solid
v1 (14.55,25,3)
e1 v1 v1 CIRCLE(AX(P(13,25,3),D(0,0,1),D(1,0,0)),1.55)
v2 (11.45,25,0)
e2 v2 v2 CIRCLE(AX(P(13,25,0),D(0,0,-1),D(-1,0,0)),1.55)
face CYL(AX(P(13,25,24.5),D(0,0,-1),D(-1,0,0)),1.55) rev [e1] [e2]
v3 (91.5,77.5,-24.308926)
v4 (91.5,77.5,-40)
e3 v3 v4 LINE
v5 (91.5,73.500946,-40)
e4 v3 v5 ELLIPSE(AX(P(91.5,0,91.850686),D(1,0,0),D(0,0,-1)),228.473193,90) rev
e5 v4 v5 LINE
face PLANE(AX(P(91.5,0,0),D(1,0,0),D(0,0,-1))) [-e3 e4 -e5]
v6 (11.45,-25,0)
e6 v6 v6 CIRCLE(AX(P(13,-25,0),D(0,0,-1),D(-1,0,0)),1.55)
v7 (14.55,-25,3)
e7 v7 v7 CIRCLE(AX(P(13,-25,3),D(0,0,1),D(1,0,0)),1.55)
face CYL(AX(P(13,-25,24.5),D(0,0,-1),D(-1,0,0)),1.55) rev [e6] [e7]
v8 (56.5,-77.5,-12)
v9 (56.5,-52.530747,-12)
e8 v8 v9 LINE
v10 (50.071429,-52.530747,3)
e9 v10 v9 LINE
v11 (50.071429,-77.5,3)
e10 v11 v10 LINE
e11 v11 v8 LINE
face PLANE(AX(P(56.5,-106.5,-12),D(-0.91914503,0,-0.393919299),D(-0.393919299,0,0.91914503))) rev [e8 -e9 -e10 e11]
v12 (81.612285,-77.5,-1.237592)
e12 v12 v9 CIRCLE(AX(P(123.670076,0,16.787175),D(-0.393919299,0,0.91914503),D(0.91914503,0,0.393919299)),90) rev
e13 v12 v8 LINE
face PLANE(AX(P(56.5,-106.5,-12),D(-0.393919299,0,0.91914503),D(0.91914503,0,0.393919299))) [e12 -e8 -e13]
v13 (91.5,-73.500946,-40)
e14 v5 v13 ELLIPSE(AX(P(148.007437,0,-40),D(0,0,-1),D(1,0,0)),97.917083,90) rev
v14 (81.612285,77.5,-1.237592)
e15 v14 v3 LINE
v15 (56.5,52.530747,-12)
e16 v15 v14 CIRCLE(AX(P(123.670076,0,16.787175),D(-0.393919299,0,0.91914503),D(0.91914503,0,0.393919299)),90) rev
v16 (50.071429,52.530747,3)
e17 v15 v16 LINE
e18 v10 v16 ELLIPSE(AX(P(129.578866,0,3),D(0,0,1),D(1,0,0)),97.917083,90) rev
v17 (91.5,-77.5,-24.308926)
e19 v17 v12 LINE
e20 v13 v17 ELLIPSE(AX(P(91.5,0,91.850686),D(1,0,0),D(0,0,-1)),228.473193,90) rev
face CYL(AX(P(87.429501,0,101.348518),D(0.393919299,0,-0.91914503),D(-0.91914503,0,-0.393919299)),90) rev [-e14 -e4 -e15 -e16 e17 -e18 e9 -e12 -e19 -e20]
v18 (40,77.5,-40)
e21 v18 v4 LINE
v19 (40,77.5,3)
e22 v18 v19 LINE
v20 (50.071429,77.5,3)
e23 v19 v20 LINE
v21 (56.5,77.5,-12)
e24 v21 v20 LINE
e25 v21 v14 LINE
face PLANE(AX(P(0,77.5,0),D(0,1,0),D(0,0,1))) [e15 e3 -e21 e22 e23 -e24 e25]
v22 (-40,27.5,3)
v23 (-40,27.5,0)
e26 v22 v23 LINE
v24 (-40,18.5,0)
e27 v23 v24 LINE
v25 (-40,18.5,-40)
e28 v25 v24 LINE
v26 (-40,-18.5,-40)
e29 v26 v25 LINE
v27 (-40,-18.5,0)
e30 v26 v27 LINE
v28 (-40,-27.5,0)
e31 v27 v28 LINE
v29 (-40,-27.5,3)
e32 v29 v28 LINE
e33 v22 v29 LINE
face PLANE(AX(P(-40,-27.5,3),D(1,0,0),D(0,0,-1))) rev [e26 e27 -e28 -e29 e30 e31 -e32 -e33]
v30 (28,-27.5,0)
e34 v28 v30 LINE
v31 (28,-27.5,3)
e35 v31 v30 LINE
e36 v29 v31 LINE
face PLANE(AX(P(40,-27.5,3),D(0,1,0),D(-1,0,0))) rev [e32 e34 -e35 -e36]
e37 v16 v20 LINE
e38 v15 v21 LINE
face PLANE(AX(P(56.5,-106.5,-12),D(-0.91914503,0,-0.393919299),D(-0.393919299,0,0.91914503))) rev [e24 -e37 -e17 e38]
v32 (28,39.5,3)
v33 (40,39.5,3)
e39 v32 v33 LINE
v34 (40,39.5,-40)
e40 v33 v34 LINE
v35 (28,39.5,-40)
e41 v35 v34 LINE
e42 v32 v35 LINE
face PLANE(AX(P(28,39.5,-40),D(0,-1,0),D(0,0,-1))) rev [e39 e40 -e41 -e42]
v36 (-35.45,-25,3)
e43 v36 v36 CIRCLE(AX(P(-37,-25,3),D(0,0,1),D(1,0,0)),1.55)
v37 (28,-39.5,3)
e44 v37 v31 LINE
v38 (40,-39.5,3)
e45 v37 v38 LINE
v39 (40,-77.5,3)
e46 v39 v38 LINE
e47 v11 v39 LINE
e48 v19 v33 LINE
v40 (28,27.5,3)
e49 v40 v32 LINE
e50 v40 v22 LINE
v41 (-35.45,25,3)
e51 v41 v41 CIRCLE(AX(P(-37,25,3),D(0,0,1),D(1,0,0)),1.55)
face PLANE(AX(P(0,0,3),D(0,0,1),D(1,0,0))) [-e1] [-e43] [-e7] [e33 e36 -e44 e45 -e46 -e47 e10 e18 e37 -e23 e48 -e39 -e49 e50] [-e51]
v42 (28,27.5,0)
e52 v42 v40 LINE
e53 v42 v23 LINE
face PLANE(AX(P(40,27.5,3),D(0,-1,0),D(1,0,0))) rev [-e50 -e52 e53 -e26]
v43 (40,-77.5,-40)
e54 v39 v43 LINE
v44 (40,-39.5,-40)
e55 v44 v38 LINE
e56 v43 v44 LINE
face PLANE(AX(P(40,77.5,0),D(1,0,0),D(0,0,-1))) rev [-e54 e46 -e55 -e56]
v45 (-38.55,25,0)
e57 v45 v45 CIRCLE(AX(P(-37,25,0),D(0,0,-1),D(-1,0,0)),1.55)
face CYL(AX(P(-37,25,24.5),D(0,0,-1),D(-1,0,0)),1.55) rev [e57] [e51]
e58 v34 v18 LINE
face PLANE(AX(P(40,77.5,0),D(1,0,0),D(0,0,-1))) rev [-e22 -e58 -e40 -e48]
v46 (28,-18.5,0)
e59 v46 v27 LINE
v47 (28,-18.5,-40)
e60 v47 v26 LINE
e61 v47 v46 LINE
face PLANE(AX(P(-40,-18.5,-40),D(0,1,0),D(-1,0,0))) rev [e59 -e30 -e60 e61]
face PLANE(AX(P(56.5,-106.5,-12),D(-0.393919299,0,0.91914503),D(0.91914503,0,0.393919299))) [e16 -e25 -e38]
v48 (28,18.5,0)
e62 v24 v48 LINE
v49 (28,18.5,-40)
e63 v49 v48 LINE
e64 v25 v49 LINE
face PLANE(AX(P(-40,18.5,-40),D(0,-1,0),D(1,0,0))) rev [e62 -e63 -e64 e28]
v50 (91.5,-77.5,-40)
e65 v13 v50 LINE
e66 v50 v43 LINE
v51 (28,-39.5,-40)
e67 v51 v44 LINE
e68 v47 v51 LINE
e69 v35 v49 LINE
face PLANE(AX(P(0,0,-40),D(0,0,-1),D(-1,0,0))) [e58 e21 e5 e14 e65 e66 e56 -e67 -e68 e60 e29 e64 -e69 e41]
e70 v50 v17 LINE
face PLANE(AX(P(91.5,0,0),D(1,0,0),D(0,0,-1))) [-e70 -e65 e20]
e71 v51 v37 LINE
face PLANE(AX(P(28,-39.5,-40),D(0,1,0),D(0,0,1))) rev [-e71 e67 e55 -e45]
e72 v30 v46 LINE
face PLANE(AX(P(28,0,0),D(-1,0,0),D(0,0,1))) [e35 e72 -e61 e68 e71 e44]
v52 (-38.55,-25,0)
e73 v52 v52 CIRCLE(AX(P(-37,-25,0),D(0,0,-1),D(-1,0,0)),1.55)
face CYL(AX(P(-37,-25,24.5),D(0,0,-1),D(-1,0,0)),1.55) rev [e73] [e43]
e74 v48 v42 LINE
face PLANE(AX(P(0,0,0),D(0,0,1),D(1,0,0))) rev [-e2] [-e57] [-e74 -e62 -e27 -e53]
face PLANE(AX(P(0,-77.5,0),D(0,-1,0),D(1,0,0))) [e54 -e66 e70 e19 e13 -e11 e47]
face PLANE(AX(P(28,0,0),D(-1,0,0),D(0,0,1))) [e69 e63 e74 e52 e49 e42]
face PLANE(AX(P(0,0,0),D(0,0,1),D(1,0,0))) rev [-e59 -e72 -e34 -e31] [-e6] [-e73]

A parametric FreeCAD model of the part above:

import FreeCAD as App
import Part
import Sketcher
Q = App.Units.Quantity


def add_polygon(sketch, points):
    """Adds a closed chain of lines whose ends are joined by coincident constraints."""
    first, n = sketch.GeometryCount, len(points)
    for a, b in zip(points, points[1:] + points[:1]):
        sketch.addGeometry(Part.LineSegment(App.Vector(*a, 0), App.Vector(*b, 0)), False)
    for i in range(n):
        sketch.addConstraint(Sketcher.Constraint("Coincident", first + i, 2, first + (i + 1) % n, 1))

doc = App.newDocument("Part")
body = doc.addObject("PartDesign::Body", "Body")

# Sketch on XY plane
sketch1 = body.newObject("Sketcher::SketchObject", "Sketch")
sketch1.AttachmentSupport = (doc.getObject("XY_Plane"), [""])
sketch1.MapMode = "FlatFace"
add_polygon(sketch1, [(-40, 28), (-40, -28), (40, -28), (40, 28)])  # lines 0-3
sketch1.addConstraint([
    Sketcher.Constraint("Vertical", 0),
    Sketcher.Constraint("Horizontal", 1),
    Sketcher.Constraint("Vertical", 2),
    Sketcher.Constraint("Horizontal", 3),
    Sketcher.Constraint("Symmetric", 0, 2, 2, 2, -1, 1),
    Sketcher.Constraint("DistanceX", 1, 1, 1, 2, Q("80 mm")),
    Sketcher.Constraint("DistanceY", 0, 2, 0, 1, Q("55 mm")),
])
pad1 = body.newObject("PartDesign::Pad", "Pad")
pad1.Profile = sketch1
pad1.Length = 3

# Sketch on XY plane
sketch2 = body.newObject("Sketcher::SketchObject", "Sketch001")
sketch2.AttachmentSupport = (doc.getObject("XY_Plane"), [""])
sketch2.MapMode = "FlatFace"
sketch2.addGeometry([
    Part.Circle(App.Vector(-37, 25, 0), App.Vector(0, 0, 1), 1.6),
    Part.Circle(App.Vector(-37, -25, 0), App.Vector(0, 0, 1), 1.6),
    Part.Circle(App.Vector(13, 25, 0), App.Vector(0, 0, 1), 1.6),
    Part.Circle(App.Vector(13, -25, 0), App.Vector(0, 0, 1), 1.6),
], False)
sketch2.addConstraint([
    Sketcher.Constraint("Equal", 0, 1),
    Sketcher.Constraint("Equal", 1, 2),
    Sketcher.Constraint("Equal", 2, 3),
    Sketcher.Constraint("Symmetric", 0, 3, 1, 3, -1),
    Sketcher.Constraint("Symmetric", 2, 3, 3, 3, -1),
    Sketcher.Constraint("Horizontal", 0, 3, 2, 3),
    Sketcher.Constraint("Diameter", 0, Q("3.1 mm")),
    Sketcher.Constraint("DistanceX", 0, 3, -1, 1, Q("37 mm")),
    Sketcher.Constraint("DistanceY", -1, 1, 0, 3, Q("25 mm")),
    Sketcher.Constraint("DistanceX", -1, 1, 2, 3, Q("13 mm")),
])
pocket1 = body.newObject("PartDesign::Pocket", "Pocket")
pocket1.Profile = sketch2
pocket1.Length = 24.5
pocket1.Reversed = True
body2 = doc.addObject("PartDesign::Body", "Body001")

# Sketch on YZ plane
sketch3 = body2.newObject("Sketcher::SketchObject", "Sketch002")
sketch3.AttachmentSupport = (doc.getObject("YZ_Plane001"), [""])
sketch3.MapMode = "FlatFace"
sketch3.AttachmentOffset = App.Placement(App.Vector(0, 0, 40), App.Rotation())
add_polygon(sketch3, [(27.5, 3), (-27.5, 3), (-27.5, 0), (27.5, 0)])  # lines 0-3
sketch3.addConstraint([
    Sketcher.Constraint("Horizontal", 0),
    Sketcher.Constraint("Vertical", 1),
    Sketcher.Constraint("Horizontal", 2),
    Sketcher.Constraint("Vertical", 3),
    Sketcher.Constraint("Symmetric", 1, 2, 2, 2, -1, 1),
    Sketcher.Constraint("DistanceX", 0, 2, 0, 1, Q("55 mm")),
    Sketcher.Constraint("DistanceY", 1, 2, 1, 1, Q("3 mm")),
])
pad2 = body2.newObject("PartDesign::Pad", "Pad001")
pad2.Profile = sketch3
pad2.Length = 1.5

# Sketch on YZ plane
sketch4 = body2.newObject("Sketcher::SketchObject", "Sketch003")
sketch4.AttachmentSupport = (doc.getObject("YZ_Plane001"), [""])
sketch4.MapMode = "FlatFace"
sketch4.AttachmentOffset = App.Placement(App.Vector(0, 0, 41.5), App.Rotation())
add_polygon(sketch4, [(27.5, 3), (-27.5, 3), (-27.5, 0), (27.5, 0)])  # lines 0-3
sketch4.addConstraint([
    Sketcher.Constraint("Horizontal", 0),
    Sketcher.Constraint("Vertical", 1),
    Sketcher.Constraint("Horizontal", 2),
    Sketcher.Constraint("Vertical", 3),
    Sketcher.Constraint("Symmetric", 1, 2, 2, 2, -1, 1),
    Sketcher.Constraint("DistanceX", 0, 2, 0, 1, Q("55 mm")),
    Sketcher.Constraint("DistanceY", 1, 2, 1, 1, Q("3 mm")),
])
pad3 = body2.newObject("PartDesign::Pad", "Pad002")
pad3.Profile = sketch4
pad3.Length = 50
doc.recompute()

boolean = body.newObject("PartDesign::Boolean", "Boolean")
boolean.Type = "Fuse"
boolean.addObjects([body2])

# Sketch on XZ plane
sketch5 = body.newObject("Sketcher::SketchObject", "Sketch004")
sketch5.AttachmentSupport = (doc.getObject("XZ_Plane"), [""])
sketch5.MapMode = "FlatFace"
sketch5.AttachmentOffset = App.Placement(App.Vector(0, 0, -27.5), App.Rotation())
add_polygon(sketch5, [(40, 0), (40, 3), (91.5, 3), (91.5, 0)])  # lines 0-3
sketch5.addConstraint([
    Sketcher.Constraint("Vertical", 0),
    Sketcher.Constraint("Horizontal", 1),
    Sketcher.Constraint("Vertical", 2),
    Sketcher.Constraint("Horizontal", 3),
    Sketcher.Constraint("PointOnObject", 2, 2, -1),
    Sketcher.Constraint("DistanceY", 0, 1, 0, 2, Q("3 mm")),
    Sketcher.Constraint("DistanceX", 1, 1, 1, 2, Q("51.5 mm")),
    Sketcher.Constraint("DistanceX", -1, 1, 0, 2, Q("40 mm")),
])
pad4 = body.newObject("PartDesign::Pad", "Pad003")
pad4.Profile = sketch5
pad4.Length = 50
pad4.Reversed = True

# Sketch on XZ plane
sketch6 = body.newObject("Sketcher::SketchObject", "Sketch005")
sketch6.AttachmentSupport = (doc.getObject("XZ_Plane"), [""])
sketch6.MapMode = "FlatFace"
sketch6.AttachmentOffset = App.Placement(App.Vector(0, 0, 27.5), App.Rotation())
add_polygon(sketch6, [(40, 3), (40, 0), (91.5, 0), (91.5, 3)])  # lines 0-3
sketch6.addConstraint([
    Sketcher.Constraint("Vertical", 0),
    Sketcher.Constraint("Horizontal", 1),
    Sketcher.Constraint("Vertical", 2),
    Sketcher.Constraint("Horizontal", 3),
    Sketcher.Constraint("PointOnObject", 0, 2, -1),
    Sketcher.Constraint("DistanceY", 0, 2, 0, 1, Q("3 mm")),
    Sketcher.Constraint("DistanceX", 1, 1, 1, 2, Q("51.5 mm")),
    Sketcher.Constraint("DistanceX", -1, 1, 0, 2, Q("40 mm")),
])
pad5 = body.newObject("PartDesign::Pad", "Pad004")
pad5.Profile = sketch6
pad5.Length = 50

# Sketch on XY plane
sketch7 = body.newObject("Sketcher::SketchObject", "Sketch006")
sketch7.AttachmentSupport = (doc.getObject("XY_Plane"), [""])
sketch7.MapMode = "FlatFace"
add_polygon(sketch7, [(92, 78), (92, -78), (40, -78), (40, 78)])  # lines 0-3
sketch7.addConstraint([
    Sketcher.Constraint("Vertical", 0),
    Sketcher.Constraint("Horizontal", 1),
    Sketcher.Constraint("Vertical", 2),
    Sketcher.Constraint("Horizontal", 3),
    Sketcher.Constraint("DistanceY", 0, 2, 0, 1, Q("155 mm")),
    Sketcher.Constraint("DistanceX", 1, 2, 1, 1, Q("51.5 mm")),
    Sketcher.Constraint("DistanceX", -1, 1, 1, 2, Q("40 mm")),
    Sketcher.Constraint("DistanceY", 0, 2, -1, 1, Q("77.5 mm")),
])
pad6 = body.newObject("PartDesign::Pad", "Pad005")
pad6.Profile = sketch7
pad6.Length = 40
pad6.Reversed = True

# Sketch on YZ plane
sketch8 = body.newObject("Sketcher::SketchObject", "Sketch007")
sketch8.AttachmentSupport = (doc.getObject("YZ_Plane"), [""])
sketch8.MapMode = "FlatFace"
sketch8.AttachmentOffset = App.Placement(App.Vector(0, 0, 40), App.Rotation())
add_polygon(sketch8, [(39.5, 3), (39.5, -40), (-39.5, -40), (-39.5, 3), (-27.5, 3), (-27.5, 0), (27.5, 0), (27.5, 3)])  # lines 0-7
sketch8.addConstraint([
    Sketcher.Constraint("Vertical", 0),
    Sketcher.Constraint("Horizontal", 1),
    Sketcher.Constraint("Vertical", 2),
    Sketcher.Constraint("Horizontal", 3),
    Sketcher.Constraint("Vertical", 4),
    Sketcher.Constraint("Horizontal", 5),
    Sketcher.Constraint("Vertical", 6),
    Sketcher.Constraint("Horizontal", 7),
    Sketcher.Constraint("Symmetric", 4, 2, 5, 2, -1, 1),
    Sketcher.Constraint("Symmetric", 2, 2, 7, 2, -2),
    Sketcher.Constraint("DistanceX", 1, 2, 1, 1, Q("79 mm")),
    Sketcher.Constraint("DistanceX", 3, 1, 3, 2, Q("12 mm")),
    Sketcher.Constraint("DistanceY", 0, 2, 0, 1, Q("43 mm")),
    Sketcher.Constraint("DistanceY", 4, 2, 4, 1, Q("3 mm")),
])
pad7 = body.newObject("PartDesign::Pad", "Pad006")
pad7.Profile = sketch8
pad7.Length = 12
pad7.Reversed = True

# Sketch on XZ plane
sketch9 = body.newObject("Sketcher::SketchObject", "Sketch008")
sketch9.AttachmentSupport = (doc.getObject("XZ_Plane"), [""])
sketch9.MapMode = "FlatFace"
sketch9.AttachmentOffset = App.Placement(App.Vector(0, 0, -77.5), App.Rotation())
add_polygon(sketch9, [(92, 3), (56, -12), (50, 3)])  # lines 0-2
sketch9.addConstraint([
    Sketcher.Constraint("Horizontal", 2),
    Sketcher.Constraint("Perpendicular", 0, 1),
    Sketcher.Constraint("DistanceY", 0, 2, -1, 1, Q("12 mm")),
    Sketcher.Constraint("DistanceY", -1, 1, 1, 2, Q("3 mm")),
    Sketcher.Constraint("DistanceX", 0, 2, 2, 2, Q("35 mm")),
    Sketcher.Constraint("DistanceX", -1, 1, 0, 2, Q("56.5 mm")),
])
pocket2 = body.newObject("PartDesign::Pocket", "Pocket001")
pocket2.Profile = sketch9
pocket2.Length = 184
pocket2.Reversed = True

# Sketch on an angled plane
sketch10 = body.newObject("Sketcher::SketchObject", "Sketch009")
sketch10.Placement = App.Placement(App.Vector(13.112069, 0, -30.594828), App.Rotation(App.Vector(0.91914503, 0, 0.393919299), App.Vector(0, 1, 0), App.Vector(-0.393919299, 0, 0.91914503), "ZXY"))
sketch10.addGeometry(Part.Circle(App.Vector(120, 0, 0), App.Vector(0, 0, 1), 90), False)
sketch10.addConstraint([
    Sketcher.Constraint("PointOnObject", 0, 3, -1),
    Sketcher.Constraint("Diameter", 0, Q("180 mm")),
    Sketcher.Constraint("DistanceX", -1, 1, 0, 3, Q("120.283528 mm")),
])
pocket3 = body.newObject("PartDesign::Pocket", "Pocket002")
pocket3.Profile = sketch10
pocket3.Length = 184
pocket3.Midplane = True

# Sketch on XY plane
sketch11 = body.newObject("Sketcher::SketchObject", "Sketch010")
sketch11.AttachmentSupport = (doc.getObject("XY_Plane"), [""])
sketch11.MapMode = "FlatFace"
add_polygon(sketch11, [(28, 18), (28, -18), (-40, -18), (-40, 18)])  # lines 0-3
sketch11.addConstraint([
    Sketcher.Constraint("Vertical", 0),
    Sketcher.Constraint("Horizontal", 1),
    Sketcher.Constraint("Vertical", 2),
    Sketcher.Constraint("Horizontal", 3),
    Sketcher.Constraint("DistanceX", 1, 2, 1, 1, Q("68 mm")),
    Sketcher.Constraint("DistanceY", 0, 2, 0, 1, Q("37 mm")),
    Sketcher.Constraint("DistanceX", -1, 1, 0, 2, Q("28 mm")),
    Sketcher.Constraint("DistanceY", 0, 2, -1, 1, Q("18.5 mm")),
])
pad8 = body.newObject("PartDesign::Pad", "Pad007")
pad8.Profile = sketch11
pad8.Length = 40
pad8.Reversed = True

doc.recompute()
